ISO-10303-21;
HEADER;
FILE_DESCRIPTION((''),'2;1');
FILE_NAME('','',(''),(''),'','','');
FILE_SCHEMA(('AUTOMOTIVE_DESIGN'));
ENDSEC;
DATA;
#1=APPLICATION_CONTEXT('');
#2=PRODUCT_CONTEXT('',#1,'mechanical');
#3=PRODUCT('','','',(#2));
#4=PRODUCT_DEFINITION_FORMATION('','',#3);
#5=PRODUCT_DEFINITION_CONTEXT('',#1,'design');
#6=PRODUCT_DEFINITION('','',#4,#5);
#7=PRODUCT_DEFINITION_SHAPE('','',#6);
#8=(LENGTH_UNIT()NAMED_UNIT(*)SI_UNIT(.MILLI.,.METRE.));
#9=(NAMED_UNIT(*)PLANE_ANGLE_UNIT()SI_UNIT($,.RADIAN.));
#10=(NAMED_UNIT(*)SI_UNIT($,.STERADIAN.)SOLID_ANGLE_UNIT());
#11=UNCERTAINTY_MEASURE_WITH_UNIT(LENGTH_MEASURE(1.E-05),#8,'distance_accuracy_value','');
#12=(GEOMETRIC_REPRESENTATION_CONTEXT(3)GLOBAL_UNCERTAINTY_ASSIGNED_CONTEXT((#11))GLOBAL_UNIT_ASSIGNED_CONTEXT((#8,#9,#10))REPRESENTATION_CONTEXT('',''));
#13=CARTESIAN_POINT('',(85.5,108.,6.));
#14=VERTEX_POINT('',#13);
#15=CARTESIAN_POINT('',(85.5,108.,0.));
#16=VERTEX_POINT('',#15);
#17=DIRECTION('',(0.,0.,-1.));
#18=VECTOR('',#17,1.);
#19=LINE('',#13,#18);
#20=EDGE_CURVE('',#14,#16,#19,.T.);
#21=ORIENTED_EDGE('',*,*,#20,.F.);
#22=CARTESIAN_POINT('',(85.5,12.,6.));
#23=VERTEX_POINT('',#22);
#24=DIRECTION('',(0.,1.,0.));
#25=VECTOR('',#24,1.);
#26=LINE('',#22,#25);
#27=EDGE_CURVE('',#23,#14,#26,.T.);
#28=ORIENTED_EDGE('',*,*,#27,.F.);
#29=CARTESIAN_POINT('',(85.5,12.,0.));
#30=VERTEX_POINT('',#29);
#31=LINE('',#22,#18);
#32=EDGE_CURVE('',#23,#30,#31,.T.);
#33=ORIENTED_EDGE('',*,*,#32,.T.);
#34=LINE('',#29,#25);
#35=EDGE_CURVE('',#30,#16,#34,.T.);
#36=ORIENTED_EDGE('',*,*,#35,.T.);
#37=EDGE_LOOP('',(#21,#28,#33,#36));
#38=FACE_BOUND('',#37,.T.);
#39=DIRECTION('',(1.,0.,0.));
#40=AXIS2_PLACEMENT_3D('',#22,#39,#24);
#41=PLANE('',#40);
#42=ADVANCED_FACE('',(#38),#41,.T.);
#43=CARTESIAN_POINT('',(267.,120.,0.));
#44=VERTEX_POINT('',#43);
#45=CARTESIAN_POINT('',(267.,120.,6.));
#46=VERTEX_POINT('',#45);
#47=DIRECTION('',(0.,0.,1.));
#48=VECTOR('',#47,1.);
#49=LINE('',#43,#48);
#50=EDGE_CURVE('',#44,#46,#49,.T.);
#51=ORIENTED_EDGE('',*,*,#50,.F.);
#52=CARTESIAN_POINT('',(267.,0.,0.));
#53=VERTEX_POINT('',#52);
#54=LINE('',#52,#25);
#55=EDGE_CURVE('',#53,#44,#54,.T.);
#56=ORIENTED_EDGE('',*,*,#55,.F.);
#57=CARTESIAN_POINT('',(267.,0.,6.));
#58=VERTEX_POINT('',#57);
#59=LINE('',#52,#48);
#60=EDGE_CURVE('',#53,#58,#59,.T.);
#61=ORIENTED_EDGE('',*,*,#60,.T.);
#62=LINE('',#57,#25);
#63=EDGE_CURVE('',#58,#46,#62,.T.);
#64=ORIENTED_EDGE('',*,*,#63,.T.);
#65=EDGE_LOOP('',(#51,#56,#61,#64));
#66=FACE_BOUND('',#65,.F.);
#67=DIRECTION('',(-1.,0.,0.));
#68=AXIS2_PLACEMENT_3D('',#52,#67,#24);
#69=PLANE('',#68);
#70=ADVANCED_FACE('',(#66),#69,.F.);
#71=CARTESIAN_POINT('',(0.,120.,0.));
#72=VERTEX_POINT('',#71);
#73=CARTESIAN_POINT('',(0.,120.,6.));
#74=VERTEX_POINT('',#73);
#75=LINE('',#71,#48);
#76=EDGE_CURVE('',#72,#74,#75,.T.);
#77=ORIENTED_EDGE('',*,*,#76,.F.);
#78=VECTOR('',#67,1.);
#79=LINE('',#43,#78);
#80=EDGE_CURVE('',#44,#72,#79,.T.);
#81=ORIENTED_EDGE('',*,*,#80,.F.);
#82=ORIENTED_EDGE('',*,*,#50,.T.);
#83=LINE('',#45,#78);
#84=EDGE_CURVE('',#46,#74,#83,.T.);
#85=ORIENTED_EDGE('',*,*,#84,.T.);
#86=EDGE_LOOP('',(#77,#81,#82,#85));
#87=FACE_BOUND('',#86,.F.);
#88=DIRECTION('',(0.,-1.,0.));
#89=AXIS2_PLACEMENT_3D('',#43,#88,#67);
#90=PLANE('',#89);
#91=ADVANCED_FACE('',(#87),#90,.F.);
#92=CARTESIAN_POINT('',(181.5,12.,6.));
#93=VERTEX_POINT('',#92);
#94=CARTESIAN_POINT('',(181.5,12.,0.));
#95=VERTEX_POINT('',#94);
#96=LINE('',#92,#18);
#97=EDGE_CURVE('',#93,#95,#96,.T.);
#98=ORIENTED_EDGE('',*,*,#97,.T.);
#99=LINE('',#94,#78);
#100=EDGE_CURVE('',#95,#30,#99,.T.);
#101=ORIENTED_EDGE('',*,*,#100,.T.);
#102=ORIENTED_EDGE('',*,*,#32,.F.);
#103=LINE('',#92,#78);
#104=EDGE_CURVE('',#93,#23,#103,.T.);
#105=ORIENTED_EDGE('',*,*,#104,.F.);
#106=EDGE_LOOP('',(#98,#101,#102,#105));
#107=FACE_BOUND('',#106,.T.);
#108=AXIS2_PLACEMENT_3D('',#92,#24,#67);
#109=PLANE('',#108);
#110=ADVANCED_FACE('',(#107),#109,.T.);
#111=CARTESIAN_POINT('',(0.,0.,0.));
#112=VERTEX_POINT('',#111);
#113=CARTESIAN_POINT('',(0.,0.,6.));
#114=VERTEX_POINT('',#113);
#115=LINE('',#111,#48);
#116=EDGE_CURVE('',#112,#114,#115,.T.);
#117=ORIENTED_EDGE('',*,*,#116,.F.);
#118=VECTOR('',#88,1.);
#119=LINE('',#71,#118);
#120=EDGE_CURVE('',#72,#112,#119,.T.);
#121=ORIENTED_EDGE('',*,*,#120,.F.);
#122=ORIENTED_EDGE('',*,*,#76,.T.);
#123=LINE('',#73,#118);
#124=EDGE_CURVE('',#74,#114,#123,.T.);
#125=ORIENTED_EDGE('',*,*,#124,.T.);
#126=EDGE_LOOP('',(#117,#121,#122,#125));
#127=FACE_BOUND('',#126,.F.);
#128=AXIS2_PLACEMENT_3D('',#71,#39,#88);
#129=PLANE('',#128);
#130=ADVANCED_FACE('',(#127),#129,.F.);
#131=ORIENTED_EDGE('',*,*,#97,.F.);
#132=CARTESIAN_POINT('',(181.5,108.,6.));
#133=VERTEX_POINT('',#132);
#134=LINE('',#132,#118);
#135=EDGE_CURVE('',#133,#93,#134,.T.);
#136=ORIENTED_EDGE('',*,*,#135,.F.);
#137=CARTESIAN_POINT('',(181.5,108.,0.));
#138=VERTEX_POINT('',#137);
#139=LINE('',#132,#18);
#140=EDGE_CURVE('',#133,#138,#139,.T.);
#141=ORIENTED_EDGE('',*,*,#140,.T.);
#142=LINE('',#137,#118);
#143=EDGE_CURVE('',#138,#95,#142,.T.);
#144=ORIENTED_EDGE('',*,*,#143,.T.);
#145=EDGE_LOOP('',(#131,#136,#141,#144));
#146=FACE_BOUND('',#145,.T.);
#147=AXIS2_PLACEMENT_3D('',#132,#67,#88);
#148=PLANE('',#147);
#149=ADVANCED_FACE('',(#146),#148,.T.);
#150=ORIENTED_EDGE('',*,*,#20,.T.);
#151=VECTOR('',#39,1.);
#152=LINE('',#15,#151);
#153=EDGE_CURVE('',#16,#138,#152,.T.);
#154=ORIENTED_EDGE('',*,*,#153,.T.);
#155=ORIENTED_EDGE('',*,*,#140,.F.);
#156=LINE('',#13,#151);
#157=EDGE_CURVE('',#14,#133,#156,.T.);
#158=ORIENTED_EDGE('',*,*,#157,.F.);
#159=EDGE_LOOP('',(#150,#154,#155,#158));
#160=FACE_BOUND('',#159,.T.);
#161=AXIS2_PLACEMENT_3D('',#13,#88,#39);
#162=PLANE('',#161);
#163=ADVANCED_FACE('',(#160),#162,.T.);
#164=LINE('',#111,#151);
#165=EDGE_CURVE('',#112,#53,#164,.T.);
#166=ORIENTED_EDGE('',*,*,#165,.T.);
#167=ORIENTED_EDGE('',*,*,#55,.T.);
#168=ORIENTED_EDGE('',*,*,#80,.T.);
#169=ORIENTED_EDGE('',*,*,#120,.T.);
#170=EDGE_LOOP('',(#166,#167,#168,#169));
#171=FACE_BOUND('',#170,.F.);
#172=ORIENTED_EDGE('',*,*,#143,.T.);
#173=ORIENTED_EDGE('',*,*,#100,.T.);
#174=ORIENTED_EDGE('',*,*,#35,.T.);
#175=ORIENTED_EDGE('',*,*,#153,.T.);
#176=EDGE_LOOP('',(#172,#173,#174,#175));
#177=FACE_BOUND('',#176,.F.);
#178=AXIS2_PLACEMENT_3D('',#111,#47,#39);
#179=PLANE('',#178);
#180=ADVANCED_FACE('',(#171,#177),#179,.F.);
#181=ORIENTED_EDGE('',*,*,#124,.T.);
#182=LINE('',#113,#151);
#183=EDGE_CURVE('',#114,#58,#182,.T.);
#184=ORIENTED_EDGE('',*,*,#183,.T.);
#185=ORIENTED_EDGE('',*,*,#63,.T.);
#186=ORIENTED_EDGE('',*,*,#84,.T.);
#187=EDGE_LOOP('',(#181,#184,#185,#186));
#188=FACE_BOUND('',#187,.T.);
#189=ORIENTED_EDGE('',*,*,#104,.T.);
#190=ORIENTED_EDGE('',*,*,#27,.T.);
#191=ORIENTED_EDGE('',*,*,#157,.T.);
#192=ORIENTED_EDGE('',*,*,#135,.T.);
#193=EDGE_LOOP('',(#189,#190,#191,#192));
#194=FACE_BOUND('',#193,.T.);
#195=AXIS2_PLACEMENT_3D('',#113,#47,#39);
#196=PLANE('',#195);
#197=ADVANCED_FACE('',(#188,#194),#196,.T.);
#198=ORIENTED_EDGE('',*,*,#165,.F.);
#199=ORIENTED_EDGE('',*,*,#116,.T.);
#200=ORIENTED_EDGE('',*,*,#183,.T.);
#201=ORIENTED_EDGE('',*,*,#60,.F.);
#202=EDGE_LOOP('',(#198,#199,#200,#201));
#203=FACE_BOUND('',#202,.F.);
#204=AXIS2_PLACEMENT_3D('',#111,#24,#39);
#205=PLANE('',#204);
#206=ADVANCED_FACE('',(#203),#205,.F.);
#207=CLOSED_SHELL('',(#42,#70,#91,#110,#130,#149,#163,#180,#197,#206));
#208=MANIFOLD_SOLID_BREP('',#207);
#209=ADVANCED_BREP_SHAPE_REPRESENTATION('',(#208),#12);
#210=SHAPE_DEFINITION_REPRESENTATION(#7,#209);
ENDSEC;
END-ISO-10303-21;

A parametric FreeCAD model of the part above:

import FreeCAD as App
import Part
import Sketcher


def add_polygon(sketch, points):
    """Adds a closed chain of lines whose ends are joined by coincident constraints."""
    first, n = sketch.GeometryCount, len(points)
    for a, b in zip(points, points[1:] + points[:1]):
        sketch.addGeometry(Part.LineSegment(App.Vector(*a, 0), App.Vector(*b, 0)), False)
    for i in range(n):
        sketch.addConstraint(Sketcher.Constraint("Coincident", first + i, 2, first + (i + 1) % n, 1))

doc = App.newDocument("Part")
body = doc.addObject("PartDesign::Body", "Body")

# Sketch on XY plane
sketch1 = body.newObject("Sketcher::SketchObject", "Sketch")
sketch1.AttachmentSupport = (doc.getObject("XY_Plane"), [""])
sketch1.MapMode = "FlatFace"
add_polygon(sketch1, [(0, 120), (0, 0), (267, 0), (267, 120)])  # lines 0-3
sketch1.addConstraint([
    Sketcher.Constraint("Vertical", 0),
    Sketcher.Constraint("Horizontal", 1),
    Sketcher.Constraint("Vertical", 2),
    Sketcher.Constraint("Horizontal", 3),
    Sketcher.Constraint("Coincident", 0, 2, -1, 1),
    Sketcher.Constraint("DistanceX", 1, 1, 1, 2, 267.0),
    Sketcher.Constraint("DistanceY", 0, 2, 0, 1, 120.0),
])
pad1 = body.newObject("PartDesign::Pad", "Pad")
pad1.Profile = sketch1
pad1.Length = 6

# Sketch on XY plane
sketch2 = body.newObject("Sketcher::SketchObject", "Sketch001")
sketch2.AttachmentSupport = (doc.getObject("XY_Plane"), [""])
sketch2.MapMode = "FlatFace"
sketch2.AttachmentOffset = App.Placement(App.Vector(0, 0, 6), App.Rotation())
add_polygon(sketch2, [(182, 108), (86, 108), (86, 12), (182, 12)])  # lines 0-3
sketch2.addConstraint([
    Sketcher.Constraint("Horizontal", 0),
    Sketcher.Constraint("Vertical", 1),
    Sketcher.Constraint("Horizontal", 2),
    Sketcher.Constraint("Vertical", 3),
    Sketcher.Constraint("Equal", 2, 1),
    Sketcher.Constraint("DistanceX", 0, 2, 0, 1, 96.0),
    Sketcher.Constraint("DistanceY", -1, 1, 1, 2, 12.0),
    Sketcher.Constraint("DistanceX", -1, 1, 0, 2, 85.5),
])
pocket1 = body.newObject("PartDesign::Pocket", "Pocket")
pocket1.Profile = sketch2
pocket1.Length = 6

doc.recompute()
